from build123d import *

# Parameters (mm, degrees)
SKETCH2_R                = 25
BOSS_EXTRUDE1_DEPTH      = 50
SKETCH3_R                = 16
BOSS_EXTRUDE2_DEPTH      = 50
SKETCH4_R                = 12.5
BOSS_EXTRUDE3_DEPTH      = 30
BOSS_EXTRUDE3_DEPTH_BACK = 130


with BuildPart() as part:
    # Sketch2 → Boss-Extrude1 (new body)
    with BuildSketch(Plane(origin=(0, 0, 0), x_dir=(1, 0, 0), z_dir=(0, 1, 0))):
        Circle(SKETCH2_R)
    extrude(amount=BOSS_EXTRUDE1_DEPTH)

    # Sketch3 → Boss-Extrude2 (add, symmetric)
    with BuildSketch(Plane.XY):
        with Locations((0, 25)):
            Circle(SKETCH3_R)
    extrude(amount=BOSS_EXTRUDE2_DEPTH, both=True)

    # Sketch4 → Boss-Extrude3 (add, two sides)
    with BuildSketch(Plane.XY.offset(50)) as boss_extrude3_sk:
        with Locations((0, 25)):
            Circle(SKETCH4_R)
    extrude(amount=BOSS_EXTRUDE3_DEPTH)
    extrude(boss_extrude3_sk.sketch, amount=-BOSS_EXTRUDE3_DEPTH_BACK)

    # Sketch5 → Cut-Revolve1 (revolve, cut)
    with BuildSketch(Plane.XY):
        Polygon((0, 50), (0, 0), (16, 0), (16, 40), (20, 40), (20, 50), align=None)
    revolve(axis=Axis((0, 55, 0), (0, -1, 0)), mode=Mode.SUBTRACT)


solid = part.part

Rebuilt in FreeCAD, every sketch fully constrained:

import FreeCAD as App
import Part
import Sketcher

V = App.Vector

doc = App.newDocument("Part")
body = doc.addObject("PartDesign::Body", "Body")

# Sketch on XZ plane
sketch1 = body.newObject("Sketcher::SketchObject", "Sketch")
sketch1.AttachmentSupport = (doc.getObject("XZ_Plane"), [""])
sketch1.MapMode = "FlatFace"
sketch1.addGeometry(Part.Circle(V(0, 0, 0), V(0, 0, 1), 25), False)
sketch1.addConstraint(Sketcher.Constraint("Coincident", 0, 3, -1, 1))
sketch1.addConstraint(Sketcher.Constraint("Diameter", 0, 50.0))
pad1 = body.newObject("PartDesign::Pad", "Pad")
pad1.Profile = sketch1
pad1.Length = 50
pad1.Reversed = True

# Sketch on XY plane
sketch2 = body.newObject("Sketcher::SketchObject", "Sketch001")
sketch2.AttachmentSupport = (doc.getObject("XY_Plane"), [""])
sketch2.MapMode = "FlatFace"
sketch2.addGeometry(Part.Circle(V(0, 25, 0), V(0, 0, 1), 16), False)
sketch2.addConstraint(Sketcher.Constraint("PointOnObject", 0, 3, -2))
sketch2.addConstraint(Sketcher.Constraint("Diameter", 0, 32.0))
sketch2.addConstraint(Sketcher.Constraint("DistanceY", -1, 1, 0, 3, 25.0))
pad2 = body.newObject("PartDesign::Pad", "Pad001")
pad2.Profile = sketch2
pad2.Length = 100
pad2.Midplane = True

# Sketch on XY plane
sketch3 = body.newObject("Sketcher::SketchObject", "Sketch002")
sketch3.AttachmentSupport = (doc.getObject("XY_Plane"), [""])
sketch3.MapMode = "FlatFace"
sketch3.AttachmentOffset = App.Placement(V(0, 0, 50), App.Rotation())
sketch3.addGeometry(Part.Circle(V(0, 25, 0), V(0, 0, 1), 12.5), False)
sketch3.addConstraint(Sketcher.Constraint("PointOnObject", 0, 3, -2))
sketch3.addConstraint(Sketcher.Constraint("Diameter", 0, 25.0))
sketch3.addConstraint(Sketcher.Constraint("DistanceY", -1, 1, 0, 3, 25.0))
pad3 = body.newObject("PartDesign::Pad", "Pad002")
pad3.Profile = sketch3
pad3.Type = "TwoLengths"
pad3.Length = 30
pad3.Length2 = 130

# Sketch on XY plane
sketch4 = body.newObject("Sketcher::SketchObject", "Sketch003")
sketch4.AttachmentSupport = (doc.getObject("XY_Plane"), [""])
sketch4.MapMode = "FlatFace"
sketch4.addGeometry(Part.LineSegment(V(0, 50, 0), V(0, 0, 0)), False)
sketch4.addGeometry(Part.LineSegment(V(0, 0, 0), V(16, 0, 0)), False)
sketch4.addGeometry(Part.LineSegment(V(16, 0, 0), V(16, 40, 0)), False)
sketch4.addGeometry(Part.LineSegment(V(16, 40, 0), V(20, 40, 0)), False)
sketch4.addGeometry(Part.LineSegment(V(20, 40, 0), V(20, 50, 0)), False)
sketch4.addGeometry(Part.LineSegment(V(20, 50, 0), V(0, 50, 0)), False)
sketch4.addConstraint(Sketcher.Constraint("Coincident", 0, 2, 1, 1))
sketch4.addConstraint(Sketcher.Constraint("Coincident", 1, 2, 2, 1))
sketch4.addConstraint(Sketcher.Constraint("Coincident", 2, 2, 3, 1))
sketch4.addConstraint(Sketcher.Constraint("Coincident", 3, 2, 4, 1))
sketch4.addConstraint(Sketcher.Constraint("Coincident", 4, 2, 5, 1))
sketch4.addConstraint(Sketcher.Constraint("Coincident", 5, 2, 0, 1))
sketch4.addConstraint(Sketcher.Constraint("Vertical", 0))
sketch4.addConstraint(Sketcher.Constraint("Horizontal", 1))
sketch4.addConstraint(Sketcher.Constraint("Vertical", 2))
sketch4.addConstraint(Sketcher.Constraint("Horizontal", 3))
sketch4.addConstraint(Sketcher.Constraint("Vertical", 4))
sketch4.addConstraint(Sketcher.Constraint("Horizontal", 5))
sketch4.addConstraint(Sketcher.Constraint("Coincident", 0, 2, -1, 1))
sketch4.addConstraint(Sketcher.Constraint("DistanceX", 1, 1, 1, 2, 16.0))
sketch4.addConstraint(Sketcher.Constraint("DistanceX", 3, 1, 3, 2, 4.0))
sketch4.addConstraint(Sketcher.Constraint("DistanceY", 0, 2, 0, 1, 50.0))
sketch4.addConstraint(Sketcher.Constraint("DistanceY", 2, 1, 2, 2, 40.0))
groove = body.newObject("PartDesign::Groove", "Groove")
groove.Profile = sketch4
groove.ReferenceAxis = (sketch4, ["V_Axis"])
groove.Angle = 360

doc.recompute()
